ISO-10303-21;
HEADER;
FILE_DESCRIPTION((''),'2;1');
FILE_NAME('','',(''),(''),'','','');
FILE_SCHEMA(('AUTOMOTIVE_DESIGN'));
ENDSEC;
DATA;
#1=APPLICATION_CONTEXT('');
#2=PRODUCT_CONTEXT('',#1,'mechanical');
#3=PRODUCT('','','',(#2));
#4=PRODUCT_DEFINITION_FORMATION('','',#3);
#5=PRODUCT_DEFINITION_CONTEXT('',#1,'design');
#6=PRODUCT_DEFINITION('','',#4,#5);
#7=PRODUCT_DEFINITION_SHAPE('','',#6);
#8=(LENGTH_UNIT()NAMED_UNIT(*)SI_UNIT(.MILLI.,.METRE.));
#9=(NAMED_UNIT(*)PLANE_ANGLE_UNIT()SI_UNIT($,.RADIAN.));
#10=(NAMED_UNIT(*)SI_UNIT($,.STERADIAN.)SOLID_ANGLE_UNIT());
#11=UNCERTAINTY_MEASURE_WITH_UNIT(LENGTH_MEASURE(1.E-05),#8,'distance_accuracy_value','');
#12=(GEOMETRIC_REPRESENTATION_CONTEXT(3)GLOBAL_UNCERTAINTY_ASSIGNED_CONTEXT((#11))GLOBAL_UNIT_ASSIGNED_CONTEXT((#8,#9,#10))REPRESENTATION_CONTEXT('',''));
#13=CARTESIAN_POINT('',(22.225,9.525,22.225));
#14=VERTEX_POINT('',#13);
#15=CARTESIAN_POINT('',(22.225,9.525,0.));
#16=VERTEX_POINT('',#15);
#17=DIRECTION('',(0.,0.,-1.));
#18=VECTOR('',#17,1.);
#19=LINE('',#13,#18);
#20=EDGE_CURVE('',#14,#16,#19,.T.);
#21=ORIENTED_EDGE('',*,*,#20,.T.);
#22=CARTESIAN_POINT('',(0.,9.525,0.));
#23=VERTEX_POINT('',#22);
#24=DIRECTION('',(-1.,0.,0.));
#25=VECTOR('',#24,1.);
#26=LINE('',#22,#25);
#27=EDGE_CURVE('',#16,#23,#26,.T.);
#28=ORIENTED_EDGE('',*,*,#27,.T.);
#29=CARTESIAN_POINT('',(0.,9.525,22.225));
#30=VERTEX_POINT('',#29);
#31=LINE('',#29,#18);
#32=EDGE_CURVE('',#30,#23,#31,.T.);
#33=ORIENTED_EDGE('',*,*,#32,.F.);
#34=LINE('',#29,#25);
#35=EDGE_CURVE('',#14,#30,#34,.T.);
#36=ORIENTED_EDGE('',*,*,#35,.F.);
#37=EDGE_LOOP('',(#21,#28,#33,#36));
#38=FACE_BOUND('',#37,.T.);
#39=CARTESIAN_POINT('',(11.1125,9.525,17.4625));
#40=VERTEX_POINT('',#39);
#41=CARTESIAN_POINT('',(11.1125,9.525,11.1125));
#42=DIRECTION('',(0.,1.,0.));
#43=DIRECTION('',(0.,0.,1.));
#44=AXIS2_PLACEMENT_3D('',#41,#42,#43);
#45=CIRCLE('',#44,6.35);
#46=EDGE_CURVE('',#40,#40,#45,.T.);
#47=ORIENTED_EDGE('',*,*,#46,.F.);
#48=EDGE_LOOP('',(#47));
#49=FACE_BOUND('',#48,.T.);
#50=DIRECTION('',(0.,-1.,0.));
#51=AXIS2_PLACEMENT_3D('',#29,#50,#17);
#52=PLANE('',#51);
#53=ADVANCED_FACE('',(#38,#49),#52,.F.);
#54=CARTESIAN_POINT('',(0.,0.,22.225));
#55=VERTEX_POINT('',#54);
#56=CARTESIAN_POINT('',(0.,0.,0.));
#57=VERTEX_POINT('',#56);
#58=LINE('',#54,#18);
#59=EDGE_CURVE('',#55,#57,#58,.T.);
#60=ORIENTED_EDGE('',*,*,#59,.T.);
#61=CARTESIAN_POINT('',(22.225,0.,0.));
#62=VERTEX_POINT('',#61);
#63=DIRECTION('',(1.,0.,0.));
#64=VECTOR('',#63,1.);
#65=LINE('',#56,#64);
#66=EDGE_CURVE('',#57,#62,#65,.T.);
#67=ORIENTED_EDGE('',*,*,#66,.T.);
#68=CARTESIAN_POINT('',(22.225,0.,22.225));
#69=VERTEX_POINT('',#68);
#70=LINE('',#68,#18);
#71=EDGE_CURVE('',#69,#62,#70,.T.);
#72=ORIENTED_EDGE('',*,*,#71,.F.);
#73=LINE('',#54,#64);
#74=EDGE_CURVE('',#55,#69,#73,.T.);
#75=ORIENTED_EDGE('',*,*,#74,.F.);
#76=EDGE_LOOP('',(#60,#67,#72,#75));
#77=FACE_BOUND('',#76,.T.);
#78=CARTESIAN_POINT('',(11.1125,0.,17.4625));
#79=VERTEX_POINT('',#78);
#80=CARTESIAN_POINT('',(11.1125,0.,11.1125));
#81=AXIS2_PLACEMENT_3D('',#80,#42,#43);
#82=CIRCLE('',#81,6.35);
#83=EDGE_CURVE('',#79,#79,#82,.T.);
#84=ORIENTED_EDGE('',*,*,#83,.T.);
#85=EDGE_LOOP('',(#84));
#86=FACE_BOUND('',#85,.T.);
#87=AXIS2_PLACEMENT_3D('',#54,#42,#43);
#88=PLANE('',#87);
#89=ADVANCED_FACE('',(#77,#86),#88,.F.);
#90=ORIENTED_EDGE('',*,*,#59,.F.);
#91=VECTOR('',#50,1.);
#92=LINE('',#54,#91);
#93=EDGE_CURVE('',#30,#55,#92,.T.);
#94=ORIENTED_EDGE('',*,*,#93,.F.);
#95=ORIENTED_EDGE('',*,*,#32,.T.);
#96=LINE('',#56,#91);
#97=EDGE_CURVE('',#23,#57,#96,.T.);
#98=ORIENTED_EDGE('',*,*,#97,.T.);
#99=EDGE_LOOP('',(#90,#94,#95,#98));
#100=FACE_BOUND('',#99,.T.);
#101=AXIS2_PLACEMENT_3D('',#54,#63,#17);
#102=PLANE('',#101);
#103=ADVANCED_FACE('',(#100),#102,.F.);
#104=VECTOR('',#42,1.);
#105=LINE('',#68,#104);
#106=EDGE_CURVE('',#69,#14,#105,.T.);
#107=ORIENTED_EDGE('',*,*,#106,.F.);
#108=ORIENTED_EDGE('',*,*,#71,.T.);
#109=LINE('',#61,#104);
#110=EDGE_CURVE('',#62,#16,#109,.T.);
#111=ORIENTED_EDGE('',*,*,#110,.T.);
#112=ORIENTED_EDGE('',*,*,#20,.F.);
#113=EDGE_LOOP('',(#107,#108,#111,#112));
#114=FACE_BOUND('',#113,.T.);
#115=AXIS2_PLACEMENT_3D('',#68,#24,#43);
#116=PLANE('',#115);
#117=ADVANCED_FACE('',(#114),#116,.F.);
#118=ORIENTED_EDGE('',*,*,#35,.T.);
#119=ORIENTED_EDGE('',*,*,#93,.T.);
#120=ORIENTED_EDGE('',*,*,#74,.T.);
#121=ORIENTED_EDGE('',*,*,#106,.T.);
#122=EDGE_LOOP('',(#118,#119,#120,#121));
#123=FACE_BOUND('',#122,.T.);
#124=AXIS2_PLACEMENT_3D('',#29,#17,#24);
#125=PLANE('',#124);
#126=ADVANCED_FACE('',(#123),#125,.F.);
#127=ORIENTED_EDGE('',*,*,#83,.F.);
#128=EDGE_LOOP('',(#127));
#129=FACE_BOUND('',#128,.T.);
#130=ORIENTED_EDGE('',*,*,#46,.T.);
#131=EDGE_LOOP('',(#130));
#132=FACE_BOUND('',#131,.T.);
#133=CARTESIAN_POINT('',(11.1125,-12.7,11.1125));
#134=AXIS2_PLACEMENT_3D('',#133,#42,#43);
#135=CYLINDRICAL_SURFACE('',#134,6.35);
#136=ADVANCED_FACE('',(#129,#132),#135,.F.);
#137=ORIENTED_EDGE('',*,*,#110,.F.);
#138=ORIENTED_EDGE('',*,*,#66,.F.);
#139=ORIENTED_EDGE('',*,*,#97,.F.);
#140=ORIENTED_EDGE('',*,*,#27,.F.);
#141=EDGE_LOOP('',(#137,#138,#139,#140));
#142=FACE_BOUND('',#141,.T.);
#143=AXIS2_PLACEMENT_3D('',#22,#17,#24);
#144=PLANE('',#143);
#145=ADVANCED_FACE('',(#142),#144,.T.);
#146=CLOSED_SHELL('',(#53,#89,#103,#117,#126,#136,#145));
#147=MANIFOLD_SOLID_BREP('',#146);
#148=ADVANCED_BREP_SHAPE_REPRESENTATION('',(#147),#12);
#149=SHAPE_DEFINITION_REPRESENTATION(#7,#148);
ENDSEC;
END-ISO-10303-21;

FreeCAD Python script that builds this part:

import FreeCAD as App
import Part
import Sketcher
from FreeCAD import Vector
Q = App.Units.Quantity

doc = App.newDocument("Part")
body = doc.addObject("PartDesign::Body", "Body")

sketch1 = body.newObject("Sketcher::SketchObject", "Sketch")
sketch1.AttachmentSupport = (doc.getObject("XY_Plane"), [""])
sketch1.MapMode = "FlatFace"
sketch1.addGeometry([
    Part.LineSegment(Vector(0, 10, 0), Vector(0, 0, 0)),
    Part.LineSegment(Vector(0, 0, 0), Vector(22, 0, 0)),
    Part.LineSegment(Vector(22, 0, 0), Vector(22, 10, 0)),
    Part.LineSegment(Vector(22, 10, 0), Vector(0, 10, 0)),
], False)
sketch1.addConstraint([
    Sketcher.Constraint("Coincident", 0, 2, 1, 1),
    Sketcher.Constraint("Coincident", 1, 2, 2, 1),
    Sketcher.Constraint("Coincident", 2, 2, 3, 1),
    Sketcher.Constraint("Coincident", 3, 2, 0, 1),
    Sketcher.Constraint("Vertical", 0),
    Sketcher.Constraint("Horizontal", 1),
    Sketcher.Constraint("Vertical", 2),
    Sketcher.Constraint("Horizontal", 3),
    Sketcher.Constraint("Coincident", 0, 2, -1, 1),
    Sketcher.Constraint("DistanceX", 1, 1, 1, 2, Q("0.875 in")),
    Sketcher.Constraint("DistanceY", 0, 2, 0, 1, Q("0.375 in")),
])
pad1 = body.newObject("PartDesign::Pad", "Pad")
pad1.Profile = sketch1
pad1.Length = Q("0.875 in")

sketch2 = body.newObject("Sketcher::SketchObject", "Sketch001")
sketch2.AttachmentSupport = (doc.getObject("XZ_Plane"), [""])
sketch2.MapMode = "FlatFace"
sketch2.AttachmentOffset = App.Placement(Vector(0, 0, -0.375 * 25.4), App.Rotation())
sketch2.addGeometry(Part.Circle(Vector(11, 11, 0), Vector(0, 0, 1), 6), False)
sketch2.addConstraint([
    Sketcher.Constraint("Diameter", 0, Q("0.5 in")),
    Sketcher.Constraint("DistanceX", -1, 1, 0, 3, Q("0.4375 in")),
    Sketcher.Constraint("DistanceY", -1, 1, 0, 3, Q("0.4375 in")),
])
pocket1 = body.newObject("PartDesign::Pocket", "Pocket")
pocket1.Profile = sketch2
pocket1.Length = Q("0.875 in")
pocket1.Reversed = True

doc.recompute()
